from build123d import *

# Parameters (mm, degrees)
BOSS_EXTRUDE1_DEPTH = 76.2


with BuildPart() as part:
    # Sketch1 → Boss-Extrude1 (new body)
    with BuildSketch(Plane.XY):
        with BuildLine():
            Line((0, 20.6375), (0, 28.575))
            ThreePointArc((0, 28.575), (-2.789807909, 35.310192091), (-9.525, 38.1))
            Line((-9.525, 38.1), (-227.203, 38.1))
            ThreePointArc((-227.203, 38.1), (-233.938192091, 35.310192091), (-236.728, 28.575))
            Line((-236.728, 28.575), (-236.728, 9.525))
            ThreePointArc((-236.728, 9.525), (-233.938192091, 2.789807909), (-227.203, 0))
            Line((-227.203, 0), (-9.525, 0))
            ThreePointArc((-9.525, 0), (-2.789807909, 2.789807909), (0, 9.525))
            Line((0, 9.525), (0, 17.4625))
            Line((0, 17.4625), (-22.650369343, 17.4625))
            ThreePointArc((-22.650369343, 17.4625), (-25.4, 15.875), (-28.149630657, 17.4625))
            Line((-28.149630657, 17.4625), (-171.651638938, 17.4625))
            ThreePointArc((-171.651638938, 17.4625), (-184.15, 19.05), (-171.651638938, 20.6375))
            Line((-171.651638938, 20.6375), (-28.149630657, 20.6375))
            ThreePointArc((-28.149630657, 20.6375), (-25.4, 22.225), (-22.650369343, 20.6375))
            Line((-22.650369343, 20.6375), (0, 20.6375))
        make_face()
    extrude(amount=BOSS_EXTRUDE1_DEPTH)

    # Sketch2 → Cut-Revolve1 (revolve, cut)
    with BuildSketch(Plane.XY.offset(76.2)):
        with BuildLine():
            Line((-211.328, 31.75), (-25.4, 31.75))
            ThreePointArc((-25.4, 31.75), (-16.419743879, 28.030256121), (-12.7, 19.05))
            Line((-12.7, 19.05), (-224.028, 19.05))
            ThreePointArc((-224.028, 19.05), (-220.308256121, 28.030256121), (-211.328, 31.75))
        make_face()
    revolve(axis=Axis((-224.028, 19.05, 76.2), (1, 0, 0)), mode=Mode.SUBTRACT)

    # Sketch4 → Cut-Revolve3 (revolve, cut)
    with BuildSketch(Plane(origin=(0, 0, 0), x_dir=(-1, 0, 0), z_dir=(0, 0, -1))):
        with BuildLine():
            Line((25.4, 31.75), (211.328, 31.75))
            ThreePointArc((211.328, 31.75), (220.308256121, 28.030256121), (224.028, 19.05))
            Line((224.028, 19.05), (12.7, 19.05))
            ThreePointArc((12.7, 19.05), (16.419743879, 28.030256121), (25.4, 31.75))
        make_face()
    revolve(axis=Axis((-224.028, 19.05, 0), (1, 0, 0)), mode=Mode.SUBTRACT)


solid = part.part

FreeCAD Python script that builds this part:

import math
import FreeCAD as App
import Part
import Sketcher
Q = App.Units.Quantity

doc = App.newDocument("Part")
body = doc.addObject("PartDesign::Body", "Body")

# Sketch on XY plane
sketch1 = body.newObject("Sketcher::SketchObject", "Sketch")
sketch1.AttachmentSupport = (doc.getObject("XY_Plane"), [""])
sketch1.MapMode = "FlatFace"
sketch1.addGeometry([
    Part.LineSegment(App.Vector(0, 20.6, 0), App.Vector(0, 28.6, 0)),  # 0
    Part.ArcOfCircle(Part.Circle(App.Vector(-9.5, 28.6, 0), App.Vector(0, 0, 1), 9.5), math.radians(0), math.radians(90)),  # 1
    Part.LineSegment(App.Vector(-9.5, 38.1, 0), App.Vector(-227.2, 38.1, 0)),  # 2
    Part.ArcOfCircle(Part.Circle(App.Vector(-227.2, 28.6, 0), App.Vector(0, 0, 1), 9.5), math.radians(90), math.radians(180)),  # 3
    Part.LineSegment(App.Vector(-236.7, 28.6, 0), App.Vector(-236.7, 9.5, 0)),  # 4
    Part.ArcOfCircle(Part.Circle(App.Vector(-227.2, 9.5, 0), App.Vector(0, 0, 1), 9.5), math.radians(180), math.radians(270)),  # 5
    Part.LineSegment(App.Vector(-227.2, 0, 0), App.Vector(-9.5, 0, 0)),  # 6
    Part.ArcOfCircle(Part.Circle(App.Vector(-9.5, 9.5, 0), App.Vector(0, 0, 1), 9.5), math.radians(-90), math.radians(0)),  # 7
    Part.LineSegment(App.Vector(0, 9.5, 0), App.Vector(0, 17.5, 0)),  # 8
    Part.LineSegment(App.Vector(0, 17.5, 0), App.Vector(-22.7, 17.5, 0)),  # 9
    Part.ArcOfCircle(Part.Circle(App.Vector(-25.4, 19.1, 0), App.Vector(0, 0, 1), 3.2), math.radians(-150), math.radians(-30)),  # 10
    Part.LineSegment(App.Vector(-28.1, 17.5, 0), App.Vector(-171.7, 17.5, 0)),  # 11
    Part.ArcOfCircle(Part.Circle(App.Vector(-177.8, 19.1, 0), App.Vector(0, 0, 1), 6.3), math.radians(14), math.radians(346)),  # 12
    Part.LineSegment(App.Vector(-171.7, 20.6, 0), App.Vector(-28.1, 20.6, 0)),  # 13
    Part.ArcOfCircle(Part.Circle(App.Vector(-25.4, 19.1, 0), App.Vector(0, 0, 1), 3.2), math.radians(30), math.radians(150)),  # 14
    Part.LineSegment(App.Vector(-22.7, 20.6, 0), App.Vector(0, 20.6, 0)),  # 15
], False)
sketch1.addConstraint([
    Sketcher.Constraint("Tangent", 0, 2, 1, 1),
    Sketcher.Constraint("Tangent", 1, 2, 2, 1),
    Sketcher.Constraint("Tangent", 2, 2, 3, 1),
    Sketcher.Constraint("Tangent", 3, 2, 4, 1),
    Sketcher.Constraint("Tangent", 4, 2, 5, 1),
    Sketcher.Constraint("Tangent", 5, 2, 6, 1),
    Sketcher.Constraint("Tangent", 6, 2, 7, 1),
    Sketcher.Constraint("Tangent", 7, 2, 8, 1),
    Sketcher.Constraint("Coincident", 8, 2, 9, 1),
    Sketcher.Constraint("Coincident", 9, 2, 10, 2),
    Sketcher.Constraint("Coincident", 10, 1, 11, 1),
    Sketcher.Constraint("Coincident", 11, 2, 12, 2),
    Sketcher.Constraint("Coincident", 12, 1, 13, 1),
    Sketcher.Constraint("Coincident", 13, 2, 14, 2),
    Sketcher.Constraint("Coincident", 14, 1, 15, 1),
    Sketcher.Constraint("Coincident", 15, 2, 0, 1),
    Sketcher.Constraint("Vertical", 0),
    Sketcher.Constraint("Horizontal", 2),
    Sketcher.Constraint("Vertical", 4),
    Sketcher.Constraint("Horizontal", 6),
    Sketcher.Constraint("Vertical", 8),
    Sketcher.Constraint("Horizontal", 9),
    Sketcher.Constraint("Horizontal", 11),
    Sketcher.Constraint("Horizontal", 13),
    Sketcher.Constraint("Horizontal", 15),
    Sketcher.Constraint("Coincident", 14, 3, 10, 3),
    Sketcher.Constraint("Equal", 1, 3),
    Sketcher.Constraint("Equal", 3, 5),
    Sketcher.Constraint("Equal", 5, 7),
    Sketcher.Constraint("Equal", 10, 14),
    Sketcher.Constraint("PointOnObject", 0, 2, -2),
    Sketcher.Constraint("PointOnObject", 5, 2, -1),
    Sketcher.Constraint("PointOnObject", 7, 2, -2),
    Sketcher.Constraint("Horizontal", 10, 3, 12, 3),
    Sketcher.Constraint("Horizontal", 9, 2, 10, 1),
    Sketcher.Constraint("Horizontal", 13, 2, 14, 1),
    Sketcher.Constraint("Vertical", 11, 2, 12, 1),
    Sketcher.Constraint("Equal", 0, 8),
    Sketcher.Constraint("Radius", 12, Q("0.25 in")),
    Sketcher.Constraint("DistanceX", 10, 3, -1, 1, Q("1 in")),
    Sketcher.Constraint("DistanceX", 12, 3, -1, 1, Q("7 in")),
    Sketcher.Constraint("Radius", 1, Q("0.375 in")),
    Sketcher.Constraint("Radius", 10, Q("0.125 in")),
    Sketcher.Constraint("DistanceX", 2, 2, 2, 1, Q("8.57 in")),
    Sketcher.Constraint("DistanceY", 4, 2, 4, 1, Q("0.75 in")),
    Sketcher.Constraint("DistanceY", 0, 1, 0, 2, Q("0.3125 in")),
])
pad1 = body.newObject("PartDesign::Pad", "Pad")
pad1.Profile = sketch1
pad1.Length = Q("3 in")

# Sketch on XY plane
sketch2 = body.newObject("Sketcher::SketchObject", "Sketch001")
sketch2.AttachmentSupport = (doc.getObject("XY_Plane"), [""])
sketch2.MapMode = "FlatFace"
sketch2.AttachmentOffset = App.Placement(App.Vector(0, 0, 3 * 25.4), App.Rotation())
sketch2.addGeometry([
    Part.LineSegment(App.Vector(-25, 32, 0), App.Vector(-211, 32, 0)),
    Part.ArcOfCircle(Part.Circle(App.Vector(-211, 19, 0), App.Vector(0, 0, 1), 13), math.radians(90), math.radians(180)),
    Part.LineSegment(App.Vector(-224, 19, 0), App.Vector(-13, 19, 0)),
    Part.ArcOfCircle(Part.Circle(App.Vector(-25, 19, 0), App.Vector(0, 0, 1), 13), math.radians(0), math.radians(90)),
], False)
sketch2.addGeometry(Part.LineSegment(App.Vector(-224, 19, 0), App.Vector(-13, 19, 0)), True)  # axis
sketch2.addConstraint([
    Sketcher.Constraint("Tangent", 0, 2, 1, 1),
    Sketcher.Constraint("Coincident", 1, 2, 2, 1),
    Sketcher.Constraint("Coincident", 2, 2, 3, 1),
    Sketcher.Constraint("Tangent", 3, 2, 0, 1),
    Sketcher.Constraint("Horizontal", 0),
    Sketcher.Constraint("Horizontal", 2),
    Sketcher.Constraint("Horizontal", 4),
    Sketcher.Constraint("Coincident", 4, 1, 1, 2),
    Sketcher.Constraint("Equal", 1, 3),
    Sketcher.Constraint("Horizontal", 3, 3, 1, 2),
    Sketcher.Constraint("Equal", 2, 4),
    Sketcher.Constraint("Radius", 1, Q("0.5 in")),
    Sketcher.Constraint("DistanceX", 3, 3, -1, 1, Q("1 in")),
    Sketcher.Constraint("DistanceX", 0, 2, 0, 1, Q("7.32 in")),
    Sketcher.Constraint("DistanceY", -1, 1, 1, 3, Q("0.75 in")),
])
groove = body.newObject("PartDesign::Groove", "Groove")
groove.Profile = sketch2
groove.ReferenceAxis = (sketch2, ["Axis0"])
groove.Angle = 360

# Sketch on XY plane
sketch3 = body.newObject("Sketcher::SketchObject", "Sketch002")
sketch3.AttachmentSupport = (doc.getObject("XY_Plane"), [""])
sketch3.MapMode = "FlatFace"
sketch3.addGeometry([
    Part.LineSegment(App.Vector(-211, 32, 0), App.Vector(-25, 32, 0)),
    Part.ArcOfCircle(Part.Circle(App.Vector(-25, 19, 0), App.Vector(0, 0, 1), 13), math.radians(0), math.radians(90)),
    Part.LineSegment(App.Vector(-13, 19, 0), App.Vector(-224, 19, 0)),
    Part.ArcOfCircle(Part.Circle(App.Vector(-211, 19, 0), App.Vector(0, 0, 1), 13), math.radians(90), math.radians(180)),
], False)
sketch3.addGeometry(Part.LineSegment(App.Vector(-224, 19, 0), App.Vector(-13, 19, 0)), True)  # axis
sketch3.addConstraint([
    Sketcher.Constraint("Tangent", 0, 2, 1, 2),
    Sketcher.Constraint("Coincident", 1, 1, 2, 1),
    Sketcher.Constraint("Coincident", 2, 2, 3, 2),
    Sketcher.Constraint("Tangent", 3, 1, 0, 1),
    Sketcher.Constraint("Horizontal", 0),
    Sketcher.Constraint("Horizontal", 2),
    Sketcher.Constraint("Horizontal", 4),
    Sketcher.Constraint("Coincident", 4, 1, 2, 2),
    Sketcher.Constraint("Equal", 1, 3),
    Sketcher.Constraint("Horizontal", 3, 3, 1, 1),
    Sketcher.Constraint("Equal", 2, 4),
    Sketcher.Constraint("Radius", 1, Q("0.5 in")),
    Sketcher.Constraint("DistanceX", 1, 3, -1, 1, Q("1 in")),
    Sketcher.Constraint("DistanceX", 0, 1, 0, 2, Q("7.32 in")),
    Sketcher.Constraint("DistanceY", -1, 1, 1, 3, Q("0.75 in")),
])
groove2 = body.newObject("PartDesign::Groove", "Groove001")
groove2.Profile = sketch3
groove2.ReferenceAxis = (sketch3, ["Axis0"])
groove2.Angle = 360

doc.recompute()
